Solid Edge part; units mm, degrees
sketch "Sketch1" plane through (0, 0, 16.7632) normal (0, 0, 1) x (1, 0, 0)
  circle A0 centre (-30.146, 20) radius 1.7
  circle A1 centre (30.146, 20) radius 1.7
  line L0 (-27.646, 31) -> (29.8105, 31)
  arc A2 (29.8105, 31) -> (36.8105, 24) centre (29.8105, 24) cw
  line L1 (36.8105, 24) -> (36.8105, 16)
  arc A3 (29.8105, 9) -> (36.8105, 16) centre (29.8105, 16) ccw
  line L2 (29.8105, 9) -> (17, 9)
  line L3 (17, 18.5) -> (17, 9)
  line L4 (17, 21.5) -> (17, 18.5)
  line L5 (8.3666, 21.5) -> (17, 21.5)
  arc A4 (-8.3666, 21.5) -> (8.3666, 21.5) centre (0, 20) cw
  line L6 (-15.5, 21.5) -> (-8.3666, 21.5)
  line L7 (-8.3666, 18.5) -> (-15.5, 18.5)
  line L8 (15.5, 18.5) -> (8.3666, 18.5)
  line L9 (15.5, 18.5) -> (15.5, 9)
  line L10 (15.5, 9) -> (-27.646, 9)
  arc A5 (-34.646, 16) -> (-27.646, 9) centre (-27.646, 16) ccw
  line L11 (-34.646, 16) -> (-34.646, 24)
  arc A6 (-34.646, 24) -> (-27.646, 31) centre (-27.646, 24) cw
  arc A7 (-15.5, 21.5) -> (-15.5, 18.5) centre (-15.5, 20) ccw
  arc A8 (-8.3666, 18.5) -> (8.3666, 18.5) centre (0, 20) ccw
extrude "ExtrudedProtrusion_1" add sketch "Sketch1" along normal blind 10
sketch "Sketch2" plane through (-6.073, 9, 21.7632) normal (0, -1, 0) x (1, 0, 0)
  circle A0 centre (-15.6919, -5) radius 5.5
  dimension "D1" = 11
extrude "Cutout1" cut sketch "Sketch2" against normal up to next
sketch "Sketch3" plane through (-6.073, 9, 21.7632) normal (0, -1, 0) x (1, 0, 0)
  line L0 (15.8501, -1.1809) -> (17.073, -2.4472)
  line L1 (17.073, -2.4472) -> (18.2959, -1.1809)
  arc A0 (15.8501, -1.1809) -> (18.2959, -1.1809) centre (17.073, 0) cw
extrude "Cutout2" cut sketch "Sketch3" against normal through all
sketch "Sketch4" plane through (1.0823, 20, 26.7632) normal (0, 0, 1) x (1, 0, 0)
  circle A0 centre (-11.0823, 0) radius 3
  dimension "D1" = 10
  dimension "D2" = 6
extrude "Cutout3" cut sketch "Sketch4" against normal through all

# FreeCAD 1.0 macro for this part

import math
import FreeCAD as App
import Part
import Sketcher

V = App.Vector
Q = App.Units.Quantity

doc = App.newDocument("Part")
body = doc.addObject("PartDesign::Body", "Body")

# Sketch on XY plane
sketch1 = body.newObject("Sketcher::SketchObject", "Sketch")
sketch1.AttachmentSupport = (doc.getObject("XY_Plane"), [""])
sketch1.MapMode = "FlatFace"
sketch1.AttachmentOffset = App.Placement(V(0, 0, 16.7632), App.Rotation())
sketch1.addGeometry([
    Part.LineSegment(V(29.8105, 31, 0), V(-27.646, 31, 0)),  # 0
    Part.ArcOfCircle(Part.Circle(V(-27.646, 24, 0), V(0, 0, 1), 7), math.radians(90), math.radians(180)),  # 1
    Part.LineSegment(V(-34.646, 24, 0), V(-34.646, 16, 0)),  # 2
    Part.ArcOfCircle(Part.Circle(V(-27.646, 16, 0), V(0, 0, 1), 7), math.radians(180), math.radians(270)),  # 3
    Part.LineSegment(V(-27.646, 9, 0), V(15.5, 9, 0)),  # 4
    Part.LineSegment(V(15.5, 9, 0), V(15.5, 18.5, 0)),  # 5
    Part.LineSegment(V(15.5, 18.5, 0), V(8.3666, 18.5, 0)),  # 6
    Part.ArcOfCircle(Part.Circle(V(0, 20, 0), V(0, 0, 1), 8.5), math.radians(-169.835751), math.radians(-10.164249)),  # 7
    Part.LineSegment(V(-8.3666, 18.5, 0), V(-15.5, 18.5, 0)),  # 8
    Part.ArcOfCircle(Part.Circle(V(-15.5, 20, 0), V(0, 0, 1), 1.5), math.radians(90), math.radians(270)),  # 9
    Part.LineSegment(V(-15.5, 21.5, 0), V(-8.3666, 21.5, 0)),  # 10
    Part.ArcOfCircle(Part.Circle(V(0, 20, 0), V(0, 0, 1), 8.5), math.radians(10.164249), math.radians(169.835751)),  # 11
    Part.LineSegment(V(8.3666, 21.5, 0), V(17, 21.5, 0)),  # 12
    Part.LineSegment(V(17, 21.5, 0), V(17, 9, 0)),  # 13
    Part.LineSegment(V(17, 9, 0), V(29.8105, 9, 0)),  # 14
    Part.ArcOfCircle(Part.Circle(V(29.8105, 16, 0), V(0, 0, 1), 7), math.radians(-90), math.radians(0)),  # 15
    Part.LineSegment(V(36.8105, 16, 0), V(36.8105, 24, 0)),  # 16
    Part.ArcOfCircle(Part.Circle(V(29.8105, 24, 0), V(0, 0, 1), 7), math.radians(0), math.radians(90)),  # 17
    Part.Circle(V(-30.146, 20, 0), V(0, 0, 1), 1.7),  # 18
    Part.Circle(V(30.146, 20, 0), V(0, 0, 1), 1.7),  # 19
], False)
sketch1.addConstraint([
    Sketcher.Constraint("Tangent", 0, 2, 1, 1),
    Sketcher.Constraint("Tangent", 1, 2, 2, 1),
    Sketcher.Constraint("Tangent", 2, 2, 3, 1),
    Sketcher.Constraint("Tangent", 3, 2, 4, 1),
    Sketcher.Constraint("Coincident", 4, 2, 5, 1),
    Sketcher.Constraint("Coincident", 5, 2, 6, 1),
    Sketcher.Constraint("Coincident", 6, 2, 7, 2),
    Sketcher.Constraint("Coincident", 7, 1, 8, 1),
    Sketcher.Constraint("Tangent", 8, 2, 9, 2),
    Sketcher.Constraint("Tangent", 9, 1, 10, 1),
    Sketcher.Constraint("Coincident", 10, 2, 11, 2),
    Sketcher.Constraint("Coincident", 11, 1, 12, 1),
    Sketcher.Constraint("Coincident", 12, 2, 13, 1),
    Sketcher.Constraint("Coincident", 13, 2, 14, 1),
    Sketcher.Constraint("Tangent", 14, 2, 15, 1),
    Sketcher.Constraint("Tangent", 15, 2, 16, 1),
    Sketcher.Constraint("Tangent", 16, 2, 17, 1),
    Sketcher.Constraint("Tangent", 17, 2, 0, 1),
    Sketcher.Constraint("Horizontal", 0),
    Sketcher.Constraint("Vertical", 2),
    Sketcher.Constraint("Horizontal", 4),
    Sketcher.Constraint("Vertical", 5),
    Sketcher.Constraint("Horizontal", 6),
    Sketcher.Constraint("Horizontal", 8),
    Sketcher.Constraint("Horizontal", 10),
    Sketcher.Constraint("Horizontal", 12),
    Sketcher.Constraint("Vertical", 13),
    Sketcher.Constraint("Horizontal", 14),
    Sketcher.Constraint("Vertical", 16),
    Sketcher.Constraint("Coincident", 11, 3, 7, 3),
    Sketcher.Constraint("Equal", 1, 3),
    Sketcher.Constraint("Equal", 7, 11),
    Sketcher.Constraint("Equal", 3, 15),
    Sketcher.Constraint("Equal", 15, 17),
    Sketcher.Constraint("Equal", 18, 19),
    Sketcher.Constraint("Symmetric", 18, 3, 19, 3, -2),
    Sketcher.Constraint("Symmetric", 6, 2, 7, 1, -2),
    Sketcher.Constraint("Horizontal", 7, 3, 9, 3),
    Sketcher.Constraint("Horizontal", 3, 3, 15, 3),
    Sketcher.Constraint("Horizontal", 11, 3, 18, 3),
    Sketcher.Constraint("Horizontal", 10, 2, 11, 1),
    Sketcher.Constraint("Equal", 6, 8),
    Sketcher.Constraint("Radius", 1, Q("7 mm")),
    Sketcher.Constraint("Diameter", 18, Q("3.4 mm")),
    Sketcher.Constraint("Radius", 7, Q("8.5 mm")),
    Sketcher.Constraint("Radius", 9, Q("1.5 mm")),
    Sketcher.Constraint("DistanceY", 2, 2, 2, 1, Q("8 mm")),
    Sketcher.Constraint("DistanceY", 5, 1, 5, 2, Q("9.5 mm")),
    Sketcher.Constraint("DistanceY", -1, 1, 1, 3, Q("24 mm")),
    Sketcher.Constraint("DistanceX", -1, 1, 12, 2, Q("17 mm")),
    Sketcher.Constraint("DistanceX", 9, 3, -1, 1, Q("15.5 mm")),
    Sketcher.Constraint("DistanceX", 18, 3, 1, 3, Q("2.5 mm")),
    Sketcher.Constraint("DistanceX", 4, 1, 4, 2, Q("43.146 mm")),
    Sketcher.Constraint("DistanceX", 0, 2, 0, 1, Q("57.4565 mm")),
])
pad1 = body.newObject("PartDesign::Pad", "Pad")
pad1.Profile = sketch1
pad1.Length = 10

# Sketch on XZ plane
sketch2 = body.newObject("Sketcher::SketchObject", "Sketch001")
sketch2.AttachmentSupport = (doc.getObject("XZ_Plane"), [""])
sketch2.MapMode = "FlatFace"
sketch2.AttachmentOffset = App.Placement(V(0, 0, -9), App.Rotation())
sketch2.addGeometry(Part.Circle(V(-21.7649, 16.7632, 0), V(0, 0, 1), 5.5), False)
sketch2.addConstraint([
    Sketcher.Constraint("Diameter", 0, Q("11 mm")),
    Sketcher.Constraint("DistanceX", 0, 3, -1, 1, Q("21.765 mm")),
    Sketcher.Constraint("DistanceY", -1, 1, 0, 3, Q("16.7632 mm")),
])
pocket1 = body.newObject("PartDesign::Pocket", "Pocket")
pocket1.Profile = sketch2
pocket1.Type = "UpToFirst"

# Sketch on XZ plane
sketch3 = body.newObject("Sketcher::SketchObject", "Sketch002")
sketch3.AttachmentSupport = (doc.getObject("XZ_Plane"), [""])
sketch3.MapMode = "FlatFace"
sketch3.AttachmentOffset = App.Placement(V(0, 0, -9), App.Rotation())
sketch3.addGeometry([
    Part.ArcOfCircle(Part.Circle(V(11, 21.7632, 0), V(0, 0, 1), 1.700003), math.radians(-43.999011), math.radians(223.999011)),
    Part.LineSegment(V(9.7771, 20.5823, 0), V(11, 19.316, 0)),
    Part.LineSegment(V(11, 19.316, 0), V(12.2229, 20.5823, 0)),
], False)
sketch3.addConstraint([
    Sketcher.Constraint("Tangent", 0, 2, 1, 1),
    Sketcher.Constraint("Coincident", 1, 2, 2, 1),
    Sketcher.Constraint("Tangent", 2, 2, 0, 1),
    Sketcher.Constraint("Horizontal", 0, 2, 2, 2),
    Sketcher.Constraint("Radius", 0, Q("1.7 mm")),
    Sketcher.Constraint("Angle", 1, Q("-45.9989 deg")),
    Sketcher.Constraint("DistanceX", -1, 1, 0, 3, Q("11 mm")),
    Sketcher.Constraint("DistanceY", -1, 1, 1, 2, Q("19.316 mm")),
])
pocket2 = body.newObject("PartDesign::Pocket", "Pocket001")
pocket2.Profile = sketch3
pocket2.Type = "ThroughAll"

# Sketch on XY plane
sketch4 = body.newObject("Sketcher::SketchObject", "Sketch003")
sketch4.AttachmentSupport = (doc.getObject("XY_Plane"), [""])
sketch4.MapMode = "FlatFace"
sketch4.AttachmentOffset = App.Placement(V(0, 0, 26.7632), App.Rotation())
sketch4.addGeometry(Part.Circle(V(-10, 20, 0), V(0, 0, 1), 3), False)
sketch4.addConstraint([
    Sketcher.Constraint("Diameter", 0, Q("6 mm")),
    Sketcher.Constraint("DistanceX", 0, 3, -1, 1, Q("10 mm")),
    Sketcher.Constraint("DistanceY", -1, 1, 0, 3, Q("20 mm")),
])
pocket3 = body.newObject("PartDesign::Pocket", "Pocket002")
pocket3.Profile = sketch4
pocket3.Type = "ThroughAll"

doc.recompute()
